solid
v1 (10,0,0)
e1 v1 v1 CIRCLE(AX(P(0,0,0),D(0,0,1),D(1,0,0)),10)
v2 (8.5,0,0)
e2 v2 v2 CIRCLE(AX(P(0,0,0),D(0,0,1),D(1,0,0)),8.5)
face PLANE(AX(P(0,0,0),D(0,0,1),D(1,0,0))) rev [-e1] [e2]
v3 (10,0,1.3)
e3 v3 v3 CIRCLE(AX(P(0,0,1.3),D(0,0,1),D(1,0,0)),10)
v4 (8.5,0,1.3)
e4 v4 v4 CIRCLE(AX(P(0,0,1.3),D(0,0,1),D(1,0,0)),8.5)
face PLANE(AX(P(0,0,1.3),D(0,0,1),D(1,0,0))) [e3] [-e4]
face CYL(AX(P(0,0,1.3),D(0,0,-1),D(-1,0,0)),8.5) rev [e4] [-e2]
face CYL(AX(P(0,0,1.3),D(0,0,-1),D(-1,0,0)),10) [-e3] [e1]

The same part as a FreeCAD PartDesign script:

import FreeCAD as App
import Part
import Sketcher
from FreeCAD import Vector

doc = App.newDocument("Part")
body = doc.addObject("PartDesign::Body", "Body")

# Sketch on XY plane
sketch1 = body.newObject("Sketcher::SketchObject", "Sketch")
sketch1.AttachmentSupport = (doc.getObject("XY_Plane"), [""])
sketch1.MapMode = "FlatFace"
sketch1.addGeometry(Part.Circle(Vector(0, 0, 0), Vector(0, 0, 1), 10), False)
sketch1.addGeometry(Part.Circle(Vector(0, 0, 0), Vector(0, 0, 1), 8), False)
sketch1.addConstraint(Sketcher.Constraint("Coincident", 0, 3, -1, 1))
sketch1.addConstraint(Sketcher.Constraint("Coincident", 1, 3, -1, 1))
sketch1.addConstraint(Sketcher.Constraint("Diameter", 0, 20.0))
sketch1.addConstraint(Sketcher.Constraint("Diameter", 1, 17.0))
pad1 = body.newObject("PartDesign::Pad", "Pad")
pad1.Profile = sketch1
pad1.Length = 1.3

doc.recompute()
